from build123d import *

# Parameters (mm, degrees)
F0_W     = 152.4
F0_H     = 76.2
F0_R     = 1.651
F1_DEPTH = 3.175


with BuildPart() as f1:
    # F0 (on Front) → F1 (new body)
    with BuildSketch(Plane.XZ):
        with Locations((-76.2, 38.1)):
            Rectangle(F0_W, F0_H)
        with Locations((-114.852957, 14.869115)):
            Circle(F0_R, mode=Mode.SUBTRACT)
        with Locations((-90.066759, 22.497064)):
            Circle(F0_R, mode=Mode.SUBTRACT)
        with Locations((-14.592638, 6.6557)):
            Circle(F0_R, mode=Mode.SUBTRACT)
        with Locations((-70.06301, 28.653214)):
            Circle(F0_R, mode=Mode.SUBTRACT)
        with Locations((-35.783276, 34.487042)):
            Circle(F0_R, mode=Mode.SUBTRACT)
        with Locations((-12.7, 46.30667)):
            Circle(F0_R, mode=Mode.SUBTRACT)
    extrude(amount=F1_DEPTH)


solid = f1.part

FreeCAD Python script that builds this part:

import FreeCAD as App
import Part
import Sketcher
Q = App.Units.Quantity

doc = App.newDocument("Part")
params = doc.addObject("Spreadsheet::Sheet", "Params")
for row, (alias, value) in enumerate([
    ("sketch1_diameter", "0.13 in"),
    ("sketch1_width", "6 in"),
    ("sketch1_height", "3 in"),
    ("pad1_length", "0.125 in"),
], start=1):
    params.set(f"A{row}", alias)
    params.set(f"B{row}", "=" + value)
    params.setAlias(f"B{row}", alias)

body = doc.addObject("PartDesign::Body", "Body")

# Sketch on XZ plane
sketch1 = body.newObject("Sketcher::SketchObject", "Sketch")
sketch1.AttachmentSupport = (doc.getObject("XZ_Plane"), [""])
sketch1.MapMode = "FlatFace"
sketch1.addGeometry([
    Part.LineSegment(App.Vector(-152.4, 76.2, 0), App.Vector(-152.4, 0, 0)),  # 0
    Part.LineSegment(App.Vector(-152.4, 0, 0), App.Vector(0, 0, 0)),  # 1
    Part.LineSegment(App.Vector(0, 0, 0), App.Vector(0, 76.2, 0)),  # 2
    Part.LineSegment(App.Vector(0, 76.2, 0), App.Vector(-152.4, 76.2, 0)),  # 3
    Part.Circle(App.Vector(-114.852957, 14.869115, 0), App.Vector(0, 0, 1), 1.651),  # 4
    Part.Circle(App.Vector(-90.066759, 22.497064, 0), App.Vector(0, 0, 1), 1.651),  # 5
    Part.Circle(App.Vector(-14.592638, 6.6557, 0), App.Vector(0, 0, 1), 1.651),  # 6
    Part.Circle(App.Vector(-70.06301, 28.653214, 0), App.Vector(0, 0, 1), 1.651),  # 7
    Part.Circle(App.Vector(-35.783276, 34.487042, 0), App.Vector(0, 0, 1), 1.651),  # 8
    Part.Circle(App.Vector(-12.7, 46.30667, 0), App.Vector(0, 0, 1), 1.651),  # 9
], False)
sketch1.addConstraint([
    Sketcher.Constraint("Coincident", 0, 2, 1, 1),
    Sketcher.Constraint("Coincident", 1, 2, 2, 1),
    Sketcher.Constraint("Coincident", 2, 2, 3, 1),
    Sketcher.Constraint("Coincident", 3, 2, 0, 1),
    Sketcher.Constraint("Vertical", 0),
    Sketcher.Constraint("Horizontal", 1),
    Sketcher.Constraint("Vertical", 2),
    Sketcher.Constraint("Horizontal", 3),
    Sketcher.Constraint("Coincident", 1, 2, -1, 1),
    Sketcher.Constraint("Equal", 4, 5),
    Sketcher.Constraint("Equal", 5, 6),
    Sketcher.Constraint("Equal", 6, 7),
    Sketcher.Constraint("Equal", 7, 8),
    Sketcher.Constraint("Equal", 8, 9),
    Sketcher.Constraint("Diameter", 4, Q("0.13 in")),
    Sketcher.Constraint("DistanceX", 1, 1, 1, 2, Q("6 in")),
    Sketcher.Constraint("DistanceY", 0, 2, 0, 1, Q("3 in")),
    Sketcher.Constraint("DistanceX", 9, 3, -1, 1, Q("0.5 in")),
    Sketcher.Constraint("DistanceY", -1, 1, 6, 3, 6.6557),
    Sketcher.Constraint("DistanceY", 4, 3, 7, 3, 13.784099),
    Sketcher.Constraint("DistanceX", 5, 3, -1, 1, 90.066759),
    Sketcher.Constraint("DistanceX", 6, 3, -1, 1, 14.592638),
    Sketcher.Constraint("DistanceX", 7, 3, -1, 1, 70.06301),
    Sketcher.Constraint("DistanceY", -1, 1, 9, 3, 46.30667),
    Sketcher.Constraint("DistanceY", 4, 3, 5, 3, 7.627949),
    Sketcher.Constraint("DistanceX", 4, 3, 6, 3, 100.260319),
    Sketcher.Constraint("DistanceY", 7, 3, 8, 3, 5.833828),
    Sketcher.Constraint("DistanceX", 8, 3, 6, 3, 21.190638),
    Sketcher.Constraint("DistanceY", -1, 1, 4, 3, 14.869115),
])
sketch1.setExpression("Constraints[14]", "Params.sketch1_diameter")
sketch1.setExpression("Constraints[15]", "Params.sketch1_width")
sketch1.setExpression("Constraints[16]", "Params.sketch1_height")
pad1 = body.newObject("PartDesign::Pad", "Pad")
pad1.Profile = sketch1
pad1.setExpression("Length", "Params.pad1_length")

doc.recompute()
